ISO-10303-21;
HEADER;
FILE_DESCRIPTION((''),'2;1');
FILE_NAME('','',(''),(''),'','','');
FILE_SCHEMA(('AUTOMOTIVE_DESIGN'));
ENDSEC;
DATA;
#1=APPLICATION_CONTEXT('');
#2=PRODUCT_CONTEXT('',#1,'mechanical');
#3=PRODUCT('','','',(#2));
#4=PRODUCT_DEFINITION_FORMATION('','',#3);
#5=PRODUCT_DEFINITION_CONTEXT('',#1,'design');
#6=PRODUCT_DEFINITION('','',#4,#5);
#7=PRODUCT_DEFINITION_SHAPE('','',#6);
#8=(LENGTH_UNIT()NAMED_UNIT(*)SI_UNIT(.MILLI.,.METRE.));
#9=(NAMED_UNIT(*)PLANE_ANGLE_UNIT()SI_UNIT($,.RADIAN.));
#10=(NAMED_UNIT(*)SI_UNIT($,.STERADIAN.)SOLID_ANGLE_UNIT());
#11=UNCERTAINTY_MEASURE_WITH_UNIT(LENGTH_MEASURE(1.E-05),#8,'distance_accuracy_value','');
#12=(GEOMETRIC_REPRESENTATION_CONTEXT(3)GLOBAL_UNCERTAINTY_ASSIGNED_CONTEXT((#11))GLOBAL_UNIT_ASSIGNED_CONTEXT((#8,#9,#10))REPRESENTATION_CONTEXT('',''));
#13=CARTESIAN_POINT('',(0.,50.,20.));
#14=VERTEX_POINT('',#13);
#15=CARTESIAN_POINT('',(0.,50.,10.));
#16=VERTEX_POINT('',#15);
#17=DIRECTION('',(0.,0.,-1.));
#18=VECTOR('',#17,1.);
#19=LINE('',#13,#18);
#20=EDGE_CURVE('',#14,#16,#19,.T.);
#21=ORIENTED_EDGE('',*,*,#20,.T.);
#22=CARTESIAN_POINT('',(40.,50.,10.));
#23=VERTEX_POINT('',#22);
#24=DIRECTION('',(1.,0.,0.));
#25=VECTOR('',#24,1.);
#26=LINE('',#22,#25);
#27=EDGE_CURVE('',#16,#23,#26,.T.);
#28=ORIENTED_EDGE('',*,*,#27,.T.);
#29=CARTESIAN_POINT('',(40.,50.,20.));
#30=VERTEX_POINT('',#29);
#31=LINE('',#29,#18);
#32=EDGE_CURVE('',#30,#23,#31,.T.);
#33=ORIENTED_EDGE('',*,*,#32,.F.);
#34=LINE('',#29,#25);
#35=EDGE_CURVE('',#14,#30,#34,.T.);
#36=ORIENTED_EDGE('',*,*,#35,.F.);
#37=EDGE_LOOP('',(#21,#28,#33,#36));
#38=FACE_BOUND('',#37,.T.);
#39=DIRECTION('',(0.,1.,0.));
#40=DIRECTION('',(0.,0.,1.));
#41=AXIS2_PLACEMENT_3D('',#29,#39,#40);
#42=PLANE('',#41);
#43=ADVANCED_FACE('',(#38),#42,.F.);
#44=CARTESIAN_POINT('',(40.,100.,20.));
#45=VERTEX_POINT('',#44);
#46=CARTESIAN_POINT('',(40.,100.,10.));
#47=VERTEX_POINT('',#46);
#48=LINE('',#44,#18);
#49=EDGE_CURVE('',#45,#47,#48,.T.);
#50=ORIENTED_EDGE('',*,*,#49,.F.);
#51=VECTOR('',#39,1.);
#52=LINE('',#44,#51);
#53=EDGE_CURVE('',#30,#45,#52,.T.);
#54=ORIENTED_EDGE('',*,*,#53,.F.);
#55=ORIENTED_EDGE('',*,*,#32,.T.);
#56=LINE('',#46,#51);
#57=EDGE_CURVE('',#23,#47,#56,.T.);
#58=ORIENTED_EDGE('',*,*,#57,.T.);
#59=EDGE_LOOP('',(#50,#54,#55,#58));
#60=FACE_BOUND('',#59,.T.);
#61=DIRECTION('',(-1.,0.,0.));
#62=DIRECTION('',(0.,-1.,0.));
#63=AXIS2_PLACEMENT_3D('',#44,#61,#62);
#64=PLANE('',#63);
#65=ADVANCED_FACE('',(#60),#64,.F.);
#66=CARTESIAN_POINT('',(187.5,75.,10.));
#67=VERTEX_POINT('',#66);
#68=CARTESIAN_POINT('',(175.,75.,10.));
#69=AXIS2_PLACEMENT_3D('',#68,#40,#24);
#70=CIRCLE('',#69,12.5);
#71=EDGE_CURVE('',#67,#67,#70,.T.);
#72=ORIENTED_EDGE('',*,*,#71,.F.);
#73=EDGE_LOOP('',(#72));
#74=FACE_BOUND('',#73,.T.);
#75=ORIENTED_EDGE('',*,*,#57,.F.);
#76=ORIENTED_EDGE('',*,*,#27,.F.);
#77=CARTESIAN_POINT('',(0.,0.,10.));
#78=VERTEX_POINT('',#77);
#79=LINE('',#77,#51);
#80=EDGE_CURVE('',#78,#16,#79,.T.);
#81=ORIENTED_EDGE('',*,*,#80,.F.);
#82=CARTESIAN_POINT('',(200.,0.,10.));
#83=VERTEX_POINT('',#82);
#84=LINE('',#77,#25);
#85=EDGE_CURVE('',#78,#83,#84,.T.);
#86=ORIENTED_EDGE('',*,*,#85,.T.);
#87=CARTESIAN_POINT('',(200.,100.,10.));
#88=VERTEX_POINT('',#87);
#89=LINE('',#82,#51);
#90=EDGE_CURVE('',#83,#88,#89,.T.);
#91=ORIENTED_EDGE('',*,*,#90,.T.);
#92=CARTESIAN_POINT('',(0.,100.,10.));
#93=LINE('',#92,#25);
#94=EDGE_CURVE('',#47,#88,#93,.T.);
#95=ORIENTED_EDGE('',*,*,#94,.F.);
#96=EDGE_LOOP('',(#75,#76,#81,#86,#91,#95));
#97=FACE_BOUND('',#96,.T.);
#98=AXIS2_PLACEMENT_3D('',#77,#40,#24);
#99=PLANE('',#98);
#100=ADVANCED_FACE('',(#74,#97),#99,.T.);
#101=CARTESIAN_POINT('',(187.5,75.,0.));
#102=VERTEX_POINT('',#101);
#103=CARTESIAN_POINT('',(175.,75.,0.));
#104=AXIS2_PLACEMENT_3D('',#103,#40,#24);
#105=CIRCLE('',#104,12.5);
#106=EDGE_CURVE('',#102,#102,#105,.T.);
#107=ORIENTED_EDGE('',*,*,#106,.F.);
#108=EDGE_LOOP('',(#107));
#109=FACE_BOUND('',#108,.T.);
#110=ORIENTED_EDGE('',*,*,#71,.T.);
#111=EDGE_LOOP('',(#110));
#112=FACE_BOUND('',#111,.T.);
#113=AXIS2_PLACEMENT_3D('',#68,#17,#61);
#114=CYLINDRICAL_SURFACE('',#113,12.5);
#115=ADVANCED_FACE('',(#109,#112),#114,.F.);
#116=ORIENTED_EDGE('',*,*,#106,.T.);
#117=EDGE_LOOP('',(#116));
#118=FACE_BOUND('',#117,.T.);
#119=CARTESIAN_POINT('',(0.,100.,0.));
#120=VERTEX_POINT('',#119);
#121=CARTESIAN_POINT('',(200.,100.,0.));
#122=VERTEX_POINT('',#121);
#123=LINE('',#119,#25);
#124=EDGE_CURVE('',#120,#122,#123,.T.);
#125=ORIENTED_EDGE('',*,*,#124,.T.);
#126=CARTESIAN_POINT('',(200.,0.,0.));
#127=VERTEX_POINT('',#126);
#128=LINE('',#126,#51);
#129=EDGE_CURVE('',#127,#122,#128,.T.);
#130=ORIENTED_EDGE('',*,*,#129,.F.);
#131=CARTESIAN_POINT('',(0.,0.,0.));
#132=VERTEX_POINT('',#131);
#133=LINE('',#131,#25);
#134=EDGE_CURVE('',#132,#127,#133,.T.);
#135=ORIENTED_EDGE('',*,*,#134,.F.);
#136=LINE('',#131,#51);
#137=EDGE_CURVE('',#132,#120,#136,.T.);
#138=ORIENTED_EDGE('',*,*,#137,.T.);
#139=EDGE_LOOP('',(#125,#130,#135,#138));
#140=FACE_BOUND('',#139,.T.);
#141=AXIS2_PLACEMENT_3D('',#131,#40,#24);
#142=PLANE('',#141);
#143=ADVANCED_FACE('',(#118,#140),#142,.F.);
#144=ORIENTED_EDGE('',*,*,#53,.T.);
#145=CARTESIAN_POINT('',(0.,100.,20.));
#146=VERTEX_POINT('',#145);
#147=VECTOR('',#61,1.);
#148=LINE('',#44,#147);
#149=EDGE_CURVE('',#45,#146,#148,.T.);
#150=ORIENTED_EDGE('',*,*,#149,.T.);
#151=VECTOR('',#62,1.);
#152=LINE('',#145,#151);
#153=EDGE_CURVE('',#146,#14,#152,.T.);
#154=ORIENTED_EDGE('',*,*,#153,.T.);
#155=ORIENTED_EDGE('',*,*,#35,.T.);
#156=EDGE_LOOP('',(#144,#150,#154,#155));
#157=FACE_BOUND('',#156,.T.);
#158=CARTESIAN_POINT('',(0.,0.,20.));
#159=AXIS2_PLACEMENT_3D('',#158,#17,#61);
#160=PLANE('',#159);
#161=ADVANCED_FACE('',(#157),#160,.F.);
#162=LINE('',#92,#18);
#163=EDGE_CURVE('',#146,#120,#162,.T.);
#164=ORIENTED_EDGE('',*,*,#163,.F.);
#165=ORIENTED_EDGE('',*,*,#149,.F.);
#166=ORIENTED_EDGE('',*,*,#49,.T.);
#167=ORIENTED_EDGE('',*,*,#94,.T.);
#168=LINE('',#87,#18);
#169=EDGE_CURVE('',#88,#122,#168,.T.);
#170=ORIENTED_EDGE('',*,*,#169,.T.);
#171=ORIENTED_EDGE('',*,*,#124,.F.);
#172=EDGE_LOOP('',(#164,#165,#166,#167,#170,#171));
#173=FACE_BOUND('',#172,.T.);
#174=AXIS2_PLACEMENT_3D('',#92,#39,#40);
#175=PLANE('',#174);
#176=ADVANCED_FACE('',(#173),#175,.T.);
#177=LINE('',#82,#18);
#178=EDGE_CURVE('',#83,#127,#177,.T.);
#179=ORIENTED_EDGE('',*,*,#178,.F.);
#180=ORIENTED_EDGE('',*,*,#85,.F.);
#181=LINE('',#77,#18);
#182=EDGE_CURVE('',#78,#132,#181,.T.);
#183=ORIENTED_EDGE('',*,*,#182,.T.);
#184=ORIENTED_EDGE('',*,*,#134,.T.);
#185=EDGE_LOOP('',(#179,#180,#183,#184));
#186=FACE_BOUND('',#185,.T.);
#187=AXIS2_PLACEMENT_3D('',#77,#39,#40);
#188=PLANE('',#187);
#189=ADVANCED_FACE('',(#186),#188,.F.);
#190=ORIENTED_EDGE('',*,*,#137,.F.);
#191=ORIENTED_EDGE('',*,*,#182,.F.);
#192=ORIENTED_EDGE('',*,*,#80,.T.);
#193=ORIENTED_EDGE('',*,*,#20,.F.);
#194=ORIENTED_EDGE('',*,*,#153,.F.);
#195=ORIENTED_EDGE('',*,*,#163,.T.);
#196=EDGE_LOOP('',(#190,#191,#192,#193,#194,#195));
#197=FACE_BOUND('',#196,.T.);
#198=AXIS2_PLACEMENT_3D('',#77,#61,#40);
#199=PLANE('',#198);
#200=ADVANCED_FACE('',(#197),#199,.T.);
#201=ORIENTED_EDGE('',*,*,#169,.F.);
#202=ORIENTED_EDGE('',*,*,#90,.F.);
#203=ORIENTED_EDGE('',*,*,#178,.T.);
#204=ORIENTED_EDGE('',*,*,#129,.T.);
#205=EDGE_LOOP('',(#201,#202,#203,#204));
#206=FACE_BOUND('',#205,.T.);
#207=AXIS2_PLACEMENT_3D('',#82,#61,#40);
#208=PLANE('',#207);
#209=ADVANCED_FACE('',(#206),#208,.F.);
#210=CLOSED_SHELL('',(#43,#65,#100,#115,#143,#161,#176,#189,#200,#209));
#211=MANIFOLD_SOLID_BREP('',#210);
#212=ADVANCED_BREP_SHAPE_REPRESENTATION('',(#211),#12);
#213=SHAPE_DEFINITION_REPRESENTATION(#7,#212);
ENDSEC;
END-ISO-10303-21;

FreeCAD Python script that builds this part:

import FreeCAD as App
import Part
import Sketcher
from FreeCAD import Vector


def add_polygon(sketch, points):
    """Adds a closed chain of lines whose ends are joined by coincident constraints."""
    first, n = sketch.GeometryCount, len(points)
    for a, b in zip(points, points[1:] + points[:1]):
        sketch.addGeometry(Part.LineSegment(App.Vector(*a, 0), App.Vector(*b, 0)), False)
    for i in range(n):
        sketch.addConstraint(Sketcher.Constraint("Coincident", first + i, 2, first + (i + 1) % n, 1))

doc = App.newDocument("Part")
body = doc.addObject("PartDesign::Body", "Body")

# Sketch on XY plane
sketch1 = body.newObject("Sketcher::SketchObject", "Sketch")
sketch1.AttachmentSupport = (doc.getObject("XY_Plane"), [""])
sketch1.MapMode = "FlatFace"
add_polygon(sketch1, [(0, 100), (0, 0), (200, 0), (200, 100)])  # lines 0-3
sketch1.addGeometry(Part.Circle(Vector(175, 75, 0), Vector(0, 0, 1), 12.5), False)  # 4
sketch1.addConstraint([
    Sketcher.Constraint("Vertical", 0),
    Sketcher.Constraint("Horizontal", 1),
    Sketcher.Constraint("Vertical", 2),
    Sketcher.Constraint("Horizontal", 3),
    Sketcher.Constraint("Coincident", 0, 2, -1, 1),
    Sketcher.Constraint("Diameter", 4, 25.0),
    Sketcher.Constraint("DistanceX", 1, 1, 1, 2, 200.0),
    Sketcher.Constraint("DistanceY", 0, 2, 0, 1, 100.0),
    Sketcher.Constraint("DistanceX", -1, 1, 4, 3, 175.0),
    Sketcher.Constraint("DistanceY", -1, 1, 4, 3, 75.0),
])
pad1 = body.newObject("PartDesign::Pad", "Pad")
pad1.Profile = sketch1
pad1.Length = 10

# Sketch on XY plane
sketch2 = body.newObject("Sketcher::SketchObject", "Sketch001")
sketch2.AttachmentSupport = (doc.getObject("XY_Plane"), [""])
sketch2.MapMode = "FlatFace"
sketch2.AttachmentOffset = App.Placement(Vector(0, 0, 10), App.Rotation())
add_polygon(sketch2, [(0, 100), (0, 50), (40, 50), (40, 100)])  # lines 0-3
sketch2.addConstraint([
    Sketcher.Constraint("Vertical", 0),
    Sketcher.Constraint("Horizontal", 1),
    Sketcher.Constraint("Vertical", 2),
    Sketcher.Constraint("Horizontal", 3),
    Sketcher.Constraint("PointOnObject", 0, 2, -2),
    Sketcher.Constraint("DistanceX", 1, 1, 1, 2, 40.0),
    Sketcher.Constraint("DistanceY", 0, 2, 0, 1, 50.0),
    Sketcher.Constraint("DistanceY", -1, 1, 0, 2, 50.0),
])
pad2 = body.newObject("PartDesign::Pad", "Pad001")
pad2.Profile = sketch2
pad2.Length = 10

doc.recompute()
